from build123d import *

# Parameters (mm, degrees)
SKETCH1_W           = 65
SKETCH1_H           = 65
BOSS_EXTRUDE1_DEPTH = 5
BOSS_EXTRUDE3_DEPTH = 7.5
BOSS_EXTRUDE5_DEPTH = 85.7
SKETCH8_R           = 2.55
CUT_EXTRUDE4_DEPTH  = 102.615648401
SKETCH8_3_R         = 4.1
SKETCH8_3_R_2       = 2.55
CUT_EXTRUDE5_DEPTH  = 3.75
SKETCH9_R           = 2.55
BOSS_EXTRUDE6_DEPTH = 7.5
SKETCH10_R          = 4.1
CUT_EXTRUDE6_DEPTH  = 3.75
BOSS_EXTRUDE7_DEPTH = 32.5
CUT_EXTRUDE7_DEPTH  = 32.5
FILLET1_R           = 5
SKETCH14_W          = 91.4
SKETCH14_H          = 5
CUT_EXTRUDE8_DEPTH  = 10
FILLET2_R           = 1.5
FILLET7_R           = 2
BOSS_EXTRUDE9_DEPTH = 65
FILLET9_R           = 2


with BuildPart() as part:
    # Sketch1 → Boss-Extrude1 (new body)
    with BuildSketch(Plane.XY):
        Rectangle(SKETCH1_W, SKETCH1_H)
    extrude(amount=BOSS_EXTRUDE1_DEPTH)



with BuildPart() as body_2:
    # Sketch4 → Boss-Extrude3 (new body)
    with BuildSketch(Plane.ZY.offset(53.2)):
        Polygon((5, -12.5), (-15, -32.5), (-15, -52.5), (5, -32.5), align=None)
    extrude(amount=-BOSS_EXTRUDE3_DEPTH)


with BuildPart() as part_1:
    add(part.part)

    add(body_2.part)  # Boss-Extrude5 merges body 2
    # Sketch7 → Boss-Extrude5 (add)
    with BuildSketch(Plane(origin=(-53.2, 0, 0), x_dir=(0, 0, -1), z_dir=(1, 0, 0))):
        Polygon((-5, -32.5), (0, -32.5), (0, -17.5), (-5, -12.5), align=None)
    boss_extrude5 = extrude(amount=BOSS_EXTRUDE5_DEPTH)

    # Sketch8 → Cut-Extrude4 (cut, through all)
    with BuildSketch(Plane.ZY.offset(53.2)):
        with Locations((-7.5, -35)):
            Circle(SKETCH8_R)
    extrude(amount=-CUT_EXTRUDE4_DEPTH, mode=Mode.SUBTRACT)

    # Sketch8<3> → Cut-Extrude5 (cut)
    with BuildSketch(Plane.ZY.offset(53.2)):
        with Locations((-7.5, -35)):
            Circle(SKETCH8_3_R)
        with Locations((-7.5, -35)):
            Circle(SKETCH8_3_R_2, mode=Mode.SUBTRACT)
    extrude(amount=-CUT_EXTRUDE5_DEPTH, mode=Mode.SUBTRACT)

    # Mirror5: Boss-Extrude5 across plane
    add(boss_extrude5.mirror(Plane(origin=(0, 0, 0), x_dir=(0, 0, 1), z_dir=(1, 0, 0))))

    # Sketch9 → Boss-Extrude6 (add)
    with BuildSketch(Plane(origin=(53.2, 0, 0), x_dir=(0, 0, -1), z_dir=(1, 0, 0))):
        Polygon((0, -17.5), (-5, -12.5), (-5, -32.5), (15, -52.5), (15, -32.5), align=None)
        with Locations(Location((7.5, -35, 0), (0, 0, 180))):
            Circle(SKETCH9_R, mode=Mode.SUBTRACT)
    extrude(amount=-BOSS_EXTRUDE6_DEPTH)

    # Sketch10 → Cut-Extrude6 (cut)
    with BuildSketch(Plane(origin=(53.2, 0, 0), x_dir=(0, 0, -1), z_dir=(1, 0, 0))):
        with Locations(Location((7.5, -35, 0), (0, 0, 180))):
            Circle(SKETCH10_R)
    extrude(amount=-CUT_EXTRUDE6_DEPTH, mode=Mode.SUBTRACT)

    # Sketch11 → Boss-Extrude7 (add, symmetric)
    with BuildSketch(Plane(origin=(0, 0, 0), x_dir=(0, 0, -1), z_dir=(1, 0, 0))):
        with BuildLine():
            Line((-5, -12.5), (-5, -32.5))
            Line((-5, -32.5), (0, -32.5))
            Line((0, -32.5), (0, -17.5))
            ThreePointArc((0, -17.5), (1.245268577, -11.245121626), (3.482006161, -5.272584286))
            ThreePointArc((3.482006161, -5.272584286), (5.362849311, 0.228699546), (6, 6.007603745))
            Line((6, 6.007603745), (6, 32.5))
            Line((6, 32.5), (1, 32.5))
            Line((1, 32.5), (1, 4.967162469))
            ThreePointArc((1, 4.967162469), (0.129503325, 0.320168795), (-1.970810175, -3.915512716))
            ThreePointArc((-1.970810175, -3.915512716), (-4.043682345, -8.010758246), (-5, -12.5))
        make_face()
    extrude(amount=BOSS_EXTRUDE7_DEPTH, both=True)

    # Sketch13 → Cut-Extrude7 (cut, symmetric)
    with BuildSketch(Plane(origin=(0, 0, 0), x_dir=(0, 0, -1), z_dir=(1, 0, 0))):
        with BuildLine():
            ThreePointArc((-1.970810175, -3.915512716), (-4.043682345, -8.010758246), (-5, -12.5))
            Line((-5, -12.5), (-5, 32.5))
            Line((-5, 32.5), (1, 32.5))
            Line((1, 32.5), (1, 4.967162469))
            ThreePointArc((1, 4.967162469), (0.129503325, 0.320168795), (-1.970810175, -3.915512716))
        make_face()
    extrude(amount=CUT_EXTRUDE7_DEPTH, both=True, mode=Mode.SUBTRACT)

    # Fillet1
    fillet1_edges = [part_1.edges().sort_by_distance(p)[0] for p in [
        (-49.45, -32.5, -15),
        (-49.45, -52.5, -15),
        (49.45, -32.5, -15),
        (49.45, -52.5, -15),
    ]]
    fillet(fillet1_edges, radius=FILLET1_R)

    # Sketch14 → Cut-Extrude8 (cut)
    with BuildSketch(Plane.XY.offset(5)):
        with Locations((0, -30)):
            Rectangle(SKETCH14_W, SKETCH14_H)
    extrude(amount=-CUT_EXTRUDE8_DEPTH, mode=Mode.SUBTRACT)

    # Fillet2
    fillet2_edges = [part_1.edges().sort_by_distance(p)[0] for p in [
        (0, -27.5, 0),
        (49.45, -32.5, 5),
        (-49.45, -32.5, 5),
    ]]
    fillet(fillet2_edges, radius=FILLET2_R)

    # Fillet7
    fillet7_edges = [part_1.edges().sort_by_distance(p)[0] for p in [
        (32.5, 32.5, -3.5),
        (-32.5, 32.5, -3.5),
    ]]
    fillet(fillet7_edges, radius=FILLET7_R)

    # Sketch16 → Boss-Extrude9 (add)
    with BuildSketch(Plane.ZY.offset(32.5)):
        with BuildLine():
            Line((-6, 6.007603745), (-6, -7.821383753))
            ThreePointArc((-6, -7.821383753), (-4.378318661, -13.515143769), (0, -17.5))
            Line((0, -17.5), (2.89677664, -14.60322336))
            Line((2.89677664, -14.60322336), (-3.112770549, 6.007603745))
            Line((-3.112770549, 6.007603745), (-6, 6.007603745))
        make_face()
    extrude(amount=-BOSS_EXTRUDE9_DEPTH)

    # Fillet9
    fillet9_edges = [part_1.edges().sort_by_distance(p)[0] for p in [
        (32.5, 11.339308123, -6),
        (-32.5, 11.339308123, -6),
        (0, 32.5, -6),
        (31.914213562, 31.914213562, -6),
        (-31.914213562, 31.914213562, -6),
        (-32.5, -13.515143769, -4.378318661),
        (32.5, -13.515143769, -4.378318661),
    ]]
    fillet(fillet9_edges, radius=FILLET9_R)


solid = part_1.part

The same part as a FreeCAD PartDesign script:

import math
import FreeCAD as App
import Part
import Sketcher
Q = App.Units.Quantity


def edges_at(feature, points):
    """Names of the edges that pass closest to the given points."""
    edges = feature.Shape.Edges
    near = lambda p: min(range(len(edges)), key=lambda i: edges[i].distToShape(Part.Vertex(*p))[0])
    return sorted({f"Edge{near(p) + 1}" for p in points})


def add_polygon(sketch, points):
    """Adds a closed chain of lines whose ends are joined by coincident constraints."""
    first, n = sketch.GeometryCount, len(points)
    for a, b in zip(points, points[1:] + points[:1]):
        sketch.addGeometry(Part.LineSegment(App.Vector(*a, 0), App.Vector(*b, 0)), False)
    for i in range(n):
        sketch.addConstraint(Sketcher.Constraint("Coincident", first + i, 2, first + (i + 1) % n, 1))

doc = App.newDocument("Part")
body = doc.addObject("PartDesign::Body", "Body")

sketch1 = body.newObject("Sketcher::SketchObject", "Sketch")
sketch1.AttachmentSupport = (doc.getObject("XY_Plane"), [""])
sketch1.MapMode = "FlatFace"
add_polygon(sketch1, [(-32.5, 32.5), (-32.5, -32.5), (32.5, -32.5), (32.5, 32.5)])
sketch1.addConstraint([
    Sketcher.Constraint("Vertical", 0),
    Sketcher.Constraint("Horizontal", 1),
    Sketcher.Constraint("Vertical", 2),
    Sketcher.Constraint("Horizontal", 3),
    Sketcher.Constraint("Symmetric", 0, 2, 2, 2, -1, 1),
    Sketcher.Constraint("Equal", 3, 0),
    Sketcher.Constraint("DistanceX", 1, 1, 1, 2, 65.0),
])
pad1 = body.newObject("PartDesign::Pad", "Pad")
pad1.Profile = sketch1
pad1.Length = 5
body2 = doc.addObject("PartDesign::Body", "Body001")

sketch2 = body2.newObject("Sketcher::SketchObject", "Sketch001")
sketch2.AttachmentSupport = (doc.getObject("YZ_Plane001"), [""])
sketch2.MapMode = "FlatFace"
sketch2.AttachmentOffset = App.Placement(App.Vector(0, 0, -53.2), App.Rotation())
add_polygon(sketch2, [(-12.5, 5), (-32.5, -15), (-52.5, -15), (-32.5, 5)])
sketch2.addConstraint([
    Sketcher.Constraint("Horizontal", 1),
    Sketcher.Constraint("Horizontal", 3),
    Sketcher.Constraint("Parallel", 0, 2),
    Sketcher.Constraint("Vertical", 0, 2, 2, 2),
    Sketcher.Constraint("DistanceX", 1, 2, 1, 1, 20.0),
    Sketcher.Constraint("Angle", 0, Q("-135 deg")),
    Sketcher.Constraint("DistanceY", 0, 2, -1, 1, 15.0),
    Sketcher.Constraint("DistanceX", 0, 2, -1, 1, 32.5),
])
pad2 = body2.newObject("PartDesign::Pad", "Pad001")
pad2.Profile = sketch2
pad2.Length = 7.5
body.AllowCompound = True
doc.recompute()

boolean = body.newObject("PartDesign::Boolean", "Boolean")
boolean.Type = "Fuse"
boolean.addObjects([body2])

sketch3 = body.newObject("Sketcher::SketchObject", "Sketch002")
sketch3.AttachmentSupport = (doc.getObject("YZ_Plane"), [""])
sketch3.MapMode = "FlatFace"
sketch3.AttachmentOffset = App.Placement(App.Vector(0, 0, -53.2), App.Rotation())
add_polygon(sketch3, [(-32.5, 5), (-32.5, 0), (-17.5, 0), (-12.5, 5)])
sketch3.addConstraint([
    Sketcher.Constraint("Vertical", 0),
    Sketcher.Constraint("Horizontal", 1),
    Sketcher.Constraint("Horizontal", 3),
    Sketcher.Constraint("PointOnObject", 0, 2, -1),
    Sketcher.Constraint("DistanceX", 1, 1, 1, 2, 15.0),
    Sketcher.Constraint("DistanceX", 3, 2, 3, 1, 20.0),
    Sketcher.Constraint("DistanceY", 0, 2, 0, 1, 5.0),
    Sketcher.Constraint("DistanceX", 0, 2, -1, 1, 32.5),
])
pad3 = body.newObject("PartDesign::Pad", "Pad002")
pad3.Profile = sketch3
pad3.Length = 85.7

sketch4 = body.newObject("Sketcher::SketchObject", "Sketch003")
sketch4.AttachmentSupport = (doc.getObject("YZ_Plane"), [""])
sketch4.MapMode = "FlatFace"
sketch4.AttachmentOffset = App.Placement(App.Vector(0, 0, -53.2), App.Rotation())
sketch4.addGeometry(Part.Circle(App.Vector(-35, -7.5, 0), App.Vector(0, 0, 1), 2.55), False)
sketch4.addConstraint([
    Sketcher.Constraint("Diameter", 0, 5.1),
    Sketcher.Constraint("DistanceX", 0, 3, -1, 1, 35.0),
    Sketcher.Constraint("DistanceY", 0, 3, -1, 1, 7.5),
])
pocket1 = body.newObject("PartDesign::Pocket", "Pocket")
pocket1.Profile = sketch4
pocket1.Type = "ThroughAll"
pocket1.Reversed = True

sketch5 = body.newObject("Sketcher::SketchObject", "Sketch004")
sketch5.AttachmentSupport = (doc.getObject("YZ_Plane"), [""])
sketch5.MapMode = "FlatFace"
sketch5.AttachmentOffset = App.Placement(App.Vector(0, 0, -53.2), App.Rotation())
sketch5.addGeometry([
    Part.Circle(App.Vector(-35, -7.5, 0), App.Vector(0, 0, 1), 4.1),
    Part.Circle(App.Vector(-35, -7.5, 0), App.Vector(0, 0, 1), 2.55),
], False)
sketch5.addConstraint([
    Sketcher.Constraint("Coincident", 1, 3, 0, 3),
    Sketcher.Constraint("Diameter", 0, 8.2),
    Sketcher.Constraint("Diameter", 1, 5.1),
    Sketcher.Constraint("DistanceX", 0, 3, -1, 1, 35.0),
    Sketcher.Constraint("DistanceY", 0, 3, -1, 1, 7.5),
])
pocket2 = body.newObject("PartDesign::Pocket", "Pocket001")
pocket2.Profile = sketch5
pocket2.Length = 3.75
pocket2.Reversed = True
doc.recompute()

mirrored = body.newObject("PartDesign::Mirrored", "Mirrored")
mirrored.Originals = [pad3]
mirrored.MirrorPlane = (doc.getObject("YZ_Plane"), [""])
body.Tip = mirrored

sketch6 = body.newObject("Sketcher::SketchObject", "Sketch005")
sketch6.AttachmentSupport = (doc.getObject("YZ_Plane"), [""])
sketch6.MapMode = "FlatFace"
sketch6.AttachmentOffset = App.Placement(App.Vector(0, 0, 53.2), App.Rotation())
add_polygon(sketch6, [(-12.5, 5), (-32.5, 5), (-52.5, -15), (-32.5, -15)])
sketch6.addGeometry(Part.Circle(App.Vector(-35, -7.5, 0), App.Vector(0, 0, 1), 2.55), False)
sketch6.addConstraint([
    Sketcher.Constraint("Horizontal", 0),
    Sketcher.Constraint("Horizontal", 2),
    Sketcher.Constraint("Parallel", 1, 3),
    Sketcher.Constraint("Vertical", 0, 2, 2, 2),
    Sketcher.Constraint("Diameter", 4, 5.1),
    Sketcher.Constraint("DistanceX", 0, 2, 0, 1, 20.0),
    Sketcher.Constraint("Angle", 1, Q("-135 deg")),
    Sketcher.Constraint("DistanceX", 4, 3, -1, 1, 35.0),
    Sketcher.Constraint("DistanceY", -1, 1, 0, 2, 5.0),
    Sketcher.Constraint("DistanceY", 4, 3, -1, 1, 7.5),
    Sketcher.Constraint("DistanceX", 0, 2, -1, 1, 32.5),
])
pad4 = body.newObject("PartDesign::Pad", "Pad003")
pad4.Profile = sketch6
pad4.Length = 7.5
pad4.Reversed = True

sketch7 = body.newObject("Sketcher::SketchObject", "Sketch006")
sketch7.AttachmentSupport = (doc.getObject("YZ_Plane"), [""])
sketch7.MapMode = "FlatFace"
sketch7.AttachmentOffset = App.Placement(App.Vector(0, 0, 53.2), App.Rotation())
sketch7.addGeometry(Part.Circle(App.Vector(-35, -7.5, 0), App.Vector(0, 0, 1), 4.1), False)
sketch7.addConstraint([
    Sketcher.Constraint("Diameter", 0, 8.2),
    Sketcher.Constraint("DistanceX", 0, 3, -1, 1, 35.0),
    Sketcher.Constraint("DistanceY", 0, 3, -1, 1, 7.5),
])
pocket3 = body.newObject("PartDesign::Pocket", "Pocket002")
pocket3.Profile = sketch7
pocket3.Length = 3.75

sketch8 = body.newObject("Sketcher::SketchObject", "Sketch007")
sketch8.AttachmentSupport = (doc.getObject("YZ_Plane"), [""])
sketch8.MapMode = "FlatFace"
sketch8.addGeometry([
    Part.LineSegment(App.Vector(-12.5, 5, 0), App.Vector(-32.5, 5, 0)),
    Part.LineSegment(App.Vector(-32.5, 5, 0), App.Vector(-32.5, 0, 0)),
    Part.LineSegment(App.Vector(-32.5, 0, 0), App.Vector(-17.5, 0, 0)),
    Part.ArcOfCircle(Part.Circle(App.Vector(-22.051276, -39.19217, 0), App.Vector(0, 0, 1), 39.455548), math.radians(64.833158), math.radians(83.376072)),
    Part.ArcOfCircle(Part.Circle(App.Vector(6.007604, 20.525668, 0), App.Vector(0, 0, 1), 26.525668), math.radians(-115.166842), math.radians(-90)),
    Part.LineSegment(App.Vector(6.007604, -6, 0), App.Vector(32.5, -6, 0)),
    Part.LineSegment(App.Vector(32.5, -6, 0), App.Vector(32.5, -1, 0)),
    Part.LineSegment(App.Vector(32.5, -1, 0), App.Vector(4.967162, -1, 0)),
    Part.ArcOfCircle(Part.Circle(App.Vector(5.787361, 16.217315, 0), App.Vector(0, 0, 1), 17.23684), math.radians(-124.257622), math.radians(-92.727395)),
    Part.ArcOfCircle(Part.Circle(App.Vector(-13.931642, -12.735641, 0), App.Vector(0, 0, 1), 17.793329), math.radians(55.742378), math.radians(85.385021)),
], False)
sketch8.addConstraint([
    Sketcher.Constraint("Coincident", 0, 2, 1, 1),
    Sketcher.Constraint("Coincident", 1, 2, 2, 1),
    Sketcher.Constraint("Coincident", 2, 2, 3, 2),
    Sketcher.Constraint("Tangent", 3, 1, 4, 1),
    Sketcher.Constraint("Tangent", 4, 2, 5, 1),
    Sketcher.Constraint("Coincident", 5, 2, 6, 1),
    Sketcher.Constraint("Coincident", 6, 2, 7, 1),
    Sketcher.Constraint("Coincident", 7, 2, 8, 2),
    Sketcher.Constraint("Tangent", 8, 1, 9, 1),
    Sketcher.Constraint("Coincident", 9, 2, 0, 1),
    Sketcher.Constraint("Horizontal", 0),
    Sketcher.Constraint("Vertical", 1),
    Sketcher.Constraint("Horizontal", 2),
    Sketcher.Constraint("Horizontal", 5),
    Sketcher.Constraint("Vertical", 6),
    Sketcher.Constraint("Horizontal", 7),
    Sketcher.Constraint("PointOnObject", 1, 2, -1),
    Sketcher.Constraint("Equal", 1, 6),
    Sketcher.Constraint("DistanceX", 0, 2, 0, 1, 20.0),
    Sketcher.Constraint("DistanceX", 2, 1, 2, 2, 15.0),
    Sketcher.Constraint("DistanceY", 1, 2, 1, 1, 5.0),
    Sketcher.Constraint("DistanceY", 4, 2, -1, 1, 6.0),
    Sketcher.Constraint("DistanceX", 0, 2, -1, 1, 32.5),
    Sketcher.Constraint("DistanceX", -1, 1, 5, 2, 32.5),
    Sketcher.Constraint("Radius", 3, 39.455548),
    Sketcher.Constraint("Radius", 8, 17.23684),
    Sketcher.Constraint("Radius", 9, 17.793329),
    Sketcher.Constraint("Radius", 4, 26.525668),
    Sketcher.Constraint("DistanceX", 7, 2, 8, 3, 0.820199),
    Sketcher.Constraint("DistanceX", 5, 1, 5, 2, 26.492396),
    Sketcher.Constraint("DistanceX", 7, 2, 7, 1, 27.532838),
])
pad5 = body.newObject("PartDesign::Pad", "Pad004")
pad5.Profile = sketch8
pad5.Length = 65
pad5.Midplane = True

sketch9 = body.newObject("Sketcher::SketchObject", "Sketch008")
sketch9.AttachmentSupport = (doc.getObject("YZ_Plane"), [""])
sketch9.MapMode = "FlatFace"
sketch9.addGeometry([
    Part.ArcOfCircle(Part.Circle(App.Vector(-13.931642, -12.735641, 0), App.Vector(0, 0, 1), 17.793329), math.radians(55.742378), math.radians(85.385021)),
    Part.ArcOfCircle(Part.Circle(App.Vector(5.787361, 16.217315, 0), App.Vector(0, 0, 1), 17.23684), math.radians(-124.257622), math.radians(-92.727395)),
    Part.LineSegment(App.Vector(4.967162, -1, 0), App.Vector(32.5, -1, 0)),
    Part.LineSegment(App.Vector(32.5, -1, 0), App.Vector(32.5, 5, 0)),
    Part.LineSegment(App.Vector(32.5, 5, 0), App.Vector(-12.5, 5, 0)),
], False)
sketch9.addConstraint([
    Sketcher.Constraint("Tangent", 0, 1, 1, 1),
    Sketcher.Constraint("Coincident", 1, 2, 2, 1),
    Sketcher.Constraint("Coincident", 2, 2, 3, 1),
    Sketcher.Constraint("Coincident", 3, 2, 4, 1),
    Sketcher.Constraint("Coincident", 4, 2, 0, 2),
    Sketcher.Constraint("Horizontal", 2),
    Sketcher.Constraint("Vertical", 3),
    Sketcher.Constraint("Horizontal", 4),
    Sketcher.Constraint("DistanceX", 4, 2, 4, 1, 45.0),
    Sketcher.Constraint("DistanceY", 3, 1, 3, 2, 6.0),
    Sketcher.Constraint("DistanceY", 1, 2, -1, 1, 1.0),
    Sketcher.Constraint("DistanceX", -1, 1, 2, 2, 32.5),
    Sketcher.Constraint("Radius", 0, 17.793329),
    Sketcher.Constraint("Radius", 1, 17.23684),
    Sketcher.Constraint("DistanceX", 1, 2, 1, 3, 0.820199),
    Sketcher.Constraint("DistanceX", 2, 1, 2, 2, 27.532838),
])
pocket4 = body.newObject("PartDesign::Pocket", "Pocket003")
pocket4.Profile = sketch9
pocket4.Length = 65
pocket4.Midplane = True
doc.recompute()

fillet = body.newObject("PartDesign::Fillet", "Fillet")
fillet.Base = (pocket4, edges_at(pocket4, [
    (-49.45, -32.5, -15),
    (-49.45, -52.5, -15),
    (49.45, -32.5, -15),
    (49.45, -52.5, -15),
]))
fillet.Radius = 5

sketch10 = body.newObject("Sketcher::SketchObject", "Sketch009")
sketch10.AttachmentSupport = (doc.getObject("XY_Plane"), [""])
sketch10.MapMode = "FlatFace"
sketch10.AttachmentOffset = App.Placement(App.Vector(0, 0, 5), App.Rotation())
add_polygon(sketch10, [(-45.7, -27.5), (-45.7, -32.5), (45.7, -32.5), (45.7, -27.5)])
sketch10.addConstraint([
    Sketcher.Constraint("Vertical", 0),
    Sketcher.Constraint("Horizontal", 1),
    Sketcher.Constraint("Vertical", 2),
    Sketcher.Constraint("Horizontal", 3),
    Sketcher.Constraint("DistanceY", 0, 2, 0, 1, 5.0),
    Sketcher.Constraint("DistanceX", 1, 1, 1, 2, 91.4),
    Sketcher.Constraint("DistanceX", 0, 2, -1, 1, 45.7),
    Sketcher.Constraint("DistanceY", 0, 2, -1, 1, 32.5),
])
pocket5 = body.newObject("PartDesign::Pocket", "Pocket004")
pocket5.Profile = sketch10
pocket5.Length = 10
doc.recompute()

fillet2 = body.newObject("PartDesign::Fillet", "Fillet001")
fillet2.Base = (pocket5, edges_at(pocket5, [(0, -27.5, 0), (49.45, -32.5, 5), (-49.45, -32.5, 5)]))
fillet2.Radius = 1.5
doc.recompute()

fillet3 = body.newObject("PartDesign::Fillet", "Fillet002")
fillet3.Base = (fillet2, edges_at(fillet2, [(32.5, 32.5, -3.5), (-32.5, 32.5, -3.5)]))
fillet3.Radius = 2

sketch11 = body.newObject("Sketcher::SketchObject", "Sketch010")
sketch11.AttachmentSupport = (doc.getObject("YZ_Plane"), [""])
sketch11.MapMode = "FlatFace"
sketch11.AttachmentOffset = App.Placement(App.Vector(0, 0, -32.5), App.Rotation())
sketch11.addGeometry([
    Part.LineSegment(App.Vector(6.007604, -6, 0), App.Vector(-7.821384, -6, 0)),
    Part.ArcOfCircle(Part.Circle(App.Vector(-7.821384, 4.806301, 0), App.Vector(0, 0, 1), 10.806301), math.radians(-153.591479), math.radians(-90)),
    Part.LineSegment(App.Vector(-17.5, 0, 0), App.Vector(-14.603223, 2.896777, 0)),
    Part.LineSegment(App.Vector(-14.603223, 2.896777, 0), App.Vector(6.007604, -3.112771, 0)),
    Part.LineSegment(App.Vector(6.007604, -3.112771, 0), App.Vector(6.007604, -6, 0)),
], False)
sketch11.addConstraint([
    Sketcher.Constraint("Tangent", 0, 2, 1, 2),
    Sketcher.Constraint("Coincident", 1, 1, 2, 1),
    Sketcher.Constraint("Coincident", 2, 2, 3, 1),
    Sketcher.Constraint("Coincident", 3, 2, 4, 1),
    Sketcher.Constraint("Coincident", 4, 2, 0, 1),
    Sketcher.Constraint("Horizontal", 0),
    Sketcher.Constraint("Vertical", 4),
    Sketcher.Constraint("PointOnObject", 1, 1, -1),
    Sketcher.Constraint("Angle", 2, Q("45 deg")),
    Sketcher.Constraint("DistanceY", 0, 2, -1, 1, 6.0),
    Sketcher.Constraint("DistanceX", 1, 1, -1, 1, 17.5),
    Sketcher.Constraint("Radius", 1, 10.806301),
    Sketcher.Constraint("DistanceY", 4, 2, 4, 1, 2.887229),
    Sketcher.Constraint("Distance", 2, 4.096661),
    Sketcher.Constraint("DistanceX", 0, 2, 0, 1, 13.828987),
])
pad6 = body.newObject("PartDesign::Pad", "Pad005")
pad6.Profile = sketch11
pad6.Length = 65
doc.recompute()

fillet4 = body.newObject("PartDesign::Fillet", "Fillet003")
fillet4.Base = (pad6, edges_at(pad6, [
    (32.5, 11.339, -6),
    (-32.5, 11.339, -6),
    (0, 32.5, -6),
    (31.914, 31.914, -6),
    (-31.914, 31.914, -6),
    (-32.5, -13.515, -4.378),
    (32.5, -13.515, -4.378),
]))
fillet4.Radius = 2

doc.recompute()
